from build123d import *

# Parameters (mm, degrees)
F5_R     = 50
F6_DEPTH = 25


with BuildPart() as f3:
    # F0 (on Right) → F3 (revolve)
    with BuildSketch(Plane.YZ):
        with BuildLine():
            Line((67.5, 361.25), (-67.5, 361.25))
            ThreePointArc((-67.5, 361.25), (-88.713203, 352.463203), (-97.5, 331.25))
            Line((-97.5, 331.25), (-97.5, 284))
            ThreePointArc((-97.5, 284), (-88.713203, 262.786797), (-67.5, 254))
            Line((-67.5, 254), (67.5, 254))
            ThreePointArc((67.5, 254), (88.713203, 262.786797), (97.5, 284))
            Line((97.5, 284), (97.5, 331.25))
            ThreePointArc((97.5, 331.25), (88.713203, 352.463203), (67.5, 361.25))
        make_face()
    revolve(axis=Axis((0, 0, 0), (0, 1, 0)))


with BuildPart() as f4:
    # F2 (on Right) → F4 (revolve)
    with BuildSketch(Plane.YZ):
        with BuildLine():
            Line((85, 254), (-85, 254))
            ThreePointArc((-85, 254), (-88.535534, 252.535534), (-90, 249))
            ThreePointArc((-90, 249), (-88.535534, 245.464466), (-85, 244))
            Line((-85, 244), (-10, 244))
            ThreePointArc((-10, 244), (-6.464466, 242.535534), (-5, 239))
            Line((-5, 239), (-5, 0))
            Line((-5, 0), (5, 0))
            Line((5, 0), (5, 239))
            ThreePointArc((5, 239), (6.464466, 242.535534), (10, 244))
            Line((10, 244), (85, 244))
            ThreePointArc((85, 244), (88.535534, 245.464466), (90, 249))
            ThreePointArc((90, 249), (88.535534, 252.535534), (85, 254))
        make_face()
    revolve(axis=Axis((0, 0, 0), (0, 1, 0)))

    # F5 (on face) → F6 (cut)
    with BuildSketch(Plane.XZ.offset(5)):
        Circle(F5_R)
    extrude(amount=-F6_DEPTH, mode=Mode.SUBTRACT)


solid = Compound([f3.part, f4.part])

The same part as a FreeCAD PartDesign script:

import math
import FreeCAD as App
import Part
import Sketcher

V = App.Vector

doc = App.newDocument("Part")
body = doc.addObject("PartDesign::Body", "Body")

# Sketch on YZ plane
sketch1 = body.newObject("Sketcher::SketchObject", "Sketch")
sketch1.AttachmentSupport = (doc.getObject("YZ_Plane"), [""])
sketch1.MapMode = "FlatFace"
sketch1.addGeometry([
    Part.LineSegment(V(68, 361, 0), V(-68, 361, 0)),  # 0
    Part.ArcOfCircle(Part.Circle(V(-67, 331, 0), V(0, 0, 1), 30), math.radians(90), math.radians(180)),  # 1
    Part.LineSegment(V(-98, 331, 0), V(-98, 284, 0)),  # 2
    Part.ArcOfCircle(Part.Circle(V(-67, 284, 0), V(0, 0, 1), 30), math.radians(-180), math.radians(-90)),  # 3
    Part.LineSegment(V(-68, 254, 0), V(68, 254, 0)),  # 4
    Part.ArcOfCircle(Part.Circle(V(67, 284, 0), V(0, 0, 1), 30), math.radians(-90), math.radians(0)),  # 5
    Part.LineSegment(V(98, 284, 0), V(98, 331, 0)),  # 6
    Part.ArcOfCircle(Part.Circle(V(67, 331, 0), V(0, 0, 1), 30), math.radians(0), math.radians(90)),  # 7
], False)
sketch1.addConstraint([
    Sketcher.Constraint("Tangent", 0, 2, 1, 1),
    Sketcher.Constraint("Tangent", 1, 2, 2, 1),
    Sketcher.Constraint("Tangent", 2, 2, 3, 1),
    Sketcher.Constraint("Tangent", 3, 2, 4, 1),
    Sketcher.Constraint("Tangent", 4, 2, 5, 1),
    Sketcher.Constraint("Tangent", 5, 2, 6, 1),
    Sketcher.Constraint("Tangent", 6, 2, 7, 1),
    Sketcher.Constraint("Tangent", 7, 2, 0, 1),
    Sketcher.Constraint("Horizontal", 0),
    Sketcher.Constraint("Vertical", 2),
    Sketcher.Constraint("Horizontal", 4),
    Sketcher.Constraint("Vertical", 6),
    Sketcher.Constraint("Equal", 1, 3),
    Sketcher.Constraint("Equal", 3, 5),
    Sketcher.Constraint("Equal", 5, 7),
    Sketcher.Constraint("Radius", 1, 30.000001),
    Sketcher.Constraint("DistanceX", 0, 2, 0, 1, 135.0),
    Sketcher.Constraint("DistanceY", -1, 1, 3, 3, 284.000001),
    Sketcher.Constraint("DistanceY", 2, 2, 2, 1, 47.25),
    Sketcher.Constraint("DistanceX", 1, 3, -1, 1, 67.499999),
])
revolution = body.newObject("PartDesign::Revolution", "Revolution")
revolution.Profile = sketch1
revolution.ReferenceAxis = (sketch1, ["H_Axis"])
revolution.Angle = 360
body2 = doc.addObject("PartDesign::Body", "Body001")

# Sketch on YZ plane
sketch2 = body2.newObject("Sketcher::SketchObject", "Sketch001")
sketch2.AttachmentSupport = (doc.getObject("YZ_Plane001"), [""])
sketch2.MapMode = "FlatFace"
sketch2.addGeometry([
    Part.LineSegment(V(85, 254, 0), V(-85, 254, 0)),  # 0
    Part.ArcOfCircle(Part.Circle(V(-85, 249, 0), V(0, 0, 1), 5), math.radians(90), math.radians(180)),  # 1
    Part.ArcOfCircle(Part.Circle(V(-85, 249, 0), V(0, 0, 1), 5), math.radians(180), math.radians(270)),  # 2
    Part.LineSegment(V(-85, 244, 0), V(-10, 244, 0)),  # 3
    Part.ArcOfCircle(Part.Circle(V(-10, 239, 0), V(0, 0, 1), 5), math.radians(0), math.radians(90)),  # 4
    Part.LineSegment(V(-5, 239, 0), V(-5, 0, 0)),  # 5
    Part.LineSegment(V(-5, 0, 0), V(5, 0, 0)),  # 6
    Part.LineSegment(V(5, 0, 0), V(5, 239, 0)),  # 7
    Part.ArcOfCircle(Part.Circle(V(10, 239, 0), V(0, 0, 1), 5), math.radians(90), math.radians(180)),  # 8
    Part.LineSegment(V(10, 244, 0), V(85, 244, 0)),  # 9
    Part.ArcOfCircle(Part.Circle(V(85, 249, 0), V(0, 0, 1), 5), math.radians(-90), math.radians(0)),  # 10
    Part.ArcOfCircle(Part.Circle(V(85, 249, 0), V(0, 0, 1), 5), math.radians(0), math.radians(90)),  # 11
], False)
sketch2.addConstraint([
    Sketcher.Constraint("Tangent", 0, 2, 1, 1),
    Sketcher.Constraint("Tangent", 1, 2, 2, 1),
    Sketcher.Constraint("Tangent", 2, 2, 3, 1),
    Sketcher.Constraint("Tangent", 3, 2, 4, 2),
    Sketcher.Constraint("Tangent", 4, 1, 5, 1),
    Sketcher.Constraint("Coincident", 5, 2, 6, 1),
    Sketcher.Constraint("Coincident", 6, 2, 7, 1),
    Sketcher.Constraint("Tangent", 7, 2, 8, 2),
    Sketcher.Constraint("Tangent", 8, 1, 9, 1),
    Sketcher.Constraint("Tangent", 9, 2, 10, 1),
    Sketcher.Constraint("Tangent", 10, 2, 11, 1),
    Sketcher.Constraint("Tangent", 11, 2, 0, 1),
    Sketcher.Constraint("Horizontal", 0),
    Sketcher.Constraint("Horizontal", 3),
    Sketcher.Constraint("Vertical", 5),
    Sketcher.Constraint("Horizontal", 6),
    Sketcher.Constraint("Vertical", 7),
    Sketcher.Constraint("Horizontal", 9),
    Sketcher.Constraint("Equal", 1, 2),
    Sketcher.Constraint("Equal", 2, 4),
    Sketcher.Constraint("Equal", 4, 8),
    Sketcher.Constraint("Equal", 8, 10),
    Sketcher.Constraint("Equal", 10, 11),
    Sketcher.Constraint("Symmetric", 5, 2, 6, 2, -1, 1),
    Sketcher.Constraint("Symmetric", 1, 2, 10, 2, -2),
    Sketcher.Constraint("Horizontal", 11, 3, 1, 2),
    Sketcher.Constraint("Radius", 1, 5.0),
    Sketcher.Constraint("DistanceX", 0, 2, 0, 1, 170.0),
    Sketcher.Constraint("DistanceX", 3, 1, 3, 2, 75.0),
    Sketcher.Constraint("DistanceY", 5, 2, 5, 1, 239.0),
])
revolution2 = body2.newObject("PartDesign::Revolution", "Revolution001")
revolution2.Profile = sketch2
revolution2.ReferenceAxis = (sketch2, ["H_Axis"])
revolution2.Angle = 360

# Sketch on XZ plane
sketch3 = body2.newObject("Sketcher::SketchObject", "Sketch002")
sketch3.AttachmentSupport = (doc.getObject("XZ_Plane001"), [""])
sketch3.MapMode = "FlatFace"
sketch3.AttachmentOffset = App.Placement(V(0, 0, 5), App.Rotation())
sketch3.addGeometry(Part.Circle(V(0, 0, 0), V(0, 0, 1), 50), False)
sketch3.addConstraint([
    Sketcher.Constraint("Coincident", 0, 3, -1, 1),
    Sketcher.Constraint("Diameter", 0, 100.0),
])
pocket1 = body2.newObject("PartDesign::Pocket", "Pocket")
pocket1.Profile = sketch3
pocket1.Length = 25

doc.recompute()
